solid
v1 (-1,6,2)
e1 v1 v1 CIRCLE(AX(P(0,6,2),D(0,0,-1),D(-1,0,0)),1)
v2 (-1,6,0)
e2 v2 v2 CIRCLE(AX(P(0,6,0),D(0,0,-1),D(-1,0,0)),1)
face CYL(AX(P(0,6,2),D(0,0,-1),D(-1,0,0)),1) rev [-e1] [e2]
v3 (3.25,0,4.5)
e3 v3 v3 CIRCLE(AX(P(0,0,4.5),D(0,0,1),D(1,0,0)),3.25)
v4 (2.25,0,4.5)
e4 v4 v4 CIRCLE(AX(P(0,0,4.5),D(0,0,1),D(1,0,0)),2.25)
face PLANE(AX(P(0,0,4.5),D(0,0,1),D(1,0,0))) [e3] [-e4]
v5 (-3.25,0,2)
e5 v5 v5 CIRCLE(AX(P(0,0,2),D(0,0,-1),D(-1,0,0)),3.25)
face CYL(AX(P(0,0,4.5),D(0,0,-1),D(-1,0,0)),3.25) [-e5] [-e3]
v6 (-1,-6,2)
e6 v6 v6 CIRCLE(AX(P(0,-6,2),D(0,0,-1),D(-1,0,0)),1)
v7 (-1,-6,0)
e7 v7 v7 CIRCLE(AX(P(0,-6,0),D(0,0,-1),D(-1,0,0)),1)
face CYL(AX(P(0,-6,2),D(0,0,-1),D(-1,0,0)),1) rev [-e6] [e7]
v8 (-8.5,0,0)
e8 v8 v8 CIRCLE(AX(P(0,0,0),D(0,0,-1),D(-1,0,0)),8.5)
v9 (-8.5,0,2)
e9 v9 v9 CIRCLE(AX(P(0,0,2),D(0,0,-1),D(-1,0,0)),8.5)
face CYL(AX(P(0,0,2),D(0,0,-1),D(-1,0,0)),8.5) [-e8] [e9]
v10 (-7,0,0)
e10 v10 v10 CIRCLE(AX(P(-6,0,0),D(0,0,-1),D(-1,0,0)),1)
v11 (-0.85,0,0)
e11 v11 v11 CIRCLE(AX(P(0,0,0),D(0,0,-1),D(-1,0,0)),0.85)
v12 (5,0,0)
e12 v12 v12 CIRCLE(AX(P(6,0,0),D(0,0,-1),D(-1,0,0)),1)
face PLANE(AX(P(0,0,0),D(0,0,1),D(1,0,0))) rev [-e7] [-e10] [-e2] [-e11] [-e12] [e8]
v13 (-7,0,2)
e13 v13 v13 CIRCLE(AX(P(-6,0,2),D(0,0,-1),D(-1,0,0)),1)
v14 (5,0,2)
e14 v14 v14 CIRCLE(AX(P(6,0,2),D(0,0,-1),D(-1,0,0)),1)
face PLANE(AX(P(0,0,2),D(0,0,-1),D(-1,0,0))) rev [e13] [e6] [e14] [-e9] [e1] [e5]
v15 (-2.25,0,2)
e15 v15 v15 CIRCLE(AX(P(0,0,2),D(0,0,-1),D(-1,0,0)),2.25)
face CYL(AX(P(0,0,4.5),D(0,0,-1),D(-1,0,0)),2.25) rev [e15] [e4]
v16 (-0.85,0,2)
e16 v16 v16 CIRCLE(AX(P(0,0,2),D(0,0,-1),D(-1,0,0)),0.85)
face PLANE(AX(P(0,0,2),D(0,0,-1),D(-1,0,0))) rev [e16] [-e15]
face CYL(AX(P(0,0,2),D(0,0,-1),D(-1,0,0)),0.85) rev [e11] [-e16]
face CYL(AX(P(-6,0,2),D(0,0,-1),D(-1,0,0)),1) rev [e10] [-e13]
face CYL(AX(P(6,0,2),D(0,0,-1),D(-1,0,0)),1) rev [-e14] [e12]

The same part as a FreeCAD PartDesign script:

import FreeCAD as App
import Part
import Sketcher
Q = App.Units.Quantity

doc = App.newDocument("Part")
params = doc.addObject("Spreadsheet::Sheet", "Params")
for row, (alias, value) in enumerate([
    ("sketch1_diameter", "6.5 mm"),
    ("sketch1_diameter2", "4.5 mm"),
    ("pad1_length", "4.5 mm"),
    ("sketch2_diameter", "17 mm"),
    ("sketch2_diameter2", "2 mm"),
    ("sketch2_diameter3", "1.7 mm"),
    ("pad2_length", "2 mm"),
], start=1):
    params.set(f"A{row}", alias)
    params.set(f"B{row}", "=" + value)
    params.setAlias(f"B{row}", alias)

body = doc.addObject("PartDesign::Body", "Body")

sketch1 = body.newObject("Sketcher::SketchObject", "Sketch")
sketch1.AttachmentSupport = (doc.getObject("XY_Plane"), [""])
sketch1.MapMode = "FlatFace"
sketch1.addGeometry(Part.Circle(App.Vector(0, 0, 0), App.Vector(0, 0, 1), 3.2), False)
sketch1.addGeometry(Part.Circle(App.Vector(0, 0, 0), App.Vector(0, 0, 1), 2.2), False)
sketch1.addConstraint(Sketcher.Constraint("Coincident", 0, 3, -1, 1))
sketch1.addConstraint(Sketcher.Constraint("Coincident", 1, 3, -1, 1))
sketch1.addConstraint(Sketcher.Constraint("Diameter", 0, Q("6.5 mm")))
sketch1.addConstraint(Sketcher.Constraint("Diameter", 1, Q("4.5 mm")))
sketch1.setExpression("Constraints[2]", "Params.sketch1_diameter")
sketch1.setExpression("Constraints[3]", "Params.sketch1_diameter2")
pad1 = body.newObject("PartDesign::Pad", "Pad")
pad1.Profile = sketch1
pad1.setExpression("Length", "Params.pad1_length")

sketch2 = body.newObject("Sketcher::SketchObject", "Sketch001")
sketch2.AttachmentSupport = (doc.getObject("XY_Plane"), [""])
sketch2.MapMode = "FlatFace"
sketch2.addGeometry(Part.Circle(App.Vector(0, 0, 0), App.Vector(0, 0, 1), 8.5), False)
sketch2.addGeometry(Part.Circle(App.Vector(0, -6, 0), App.Vector(0, 0, 1), 1), False)
sketch2.addGeometry(Part.Circle(App.Vector(6, 0, 0), App.Vector(0, 0, 1), 1), False)
sketch2.addGeometry(Part.Circle(App.Vector(0, 0, 0), App.Vector(0, 0, 1), 0.8), False)
sketch2.addGeometry(Part.Circle(App.Vector(-6, 0, 0), App.Vector(0, 0, 1), 1), False)
sketch2.addGeometry(Part.Circle(App.Vector(0, 6, 0), App.Vector(0, 0, 1), 1), False)
sketch2.addConstraint(Sketcher.Constraint("Coincident", 0, 3, -1, 1))
sketch2.addConstraint(Sketcher.Constraint("Coincident", 3, 3, -1, 1))
sketch2.addConstraint(Sketcher.Constraint("Equal", 1, 2))
sketch2.addConstraint(Sketcher.Constraint("Equal", 2, 4))
sketch2.addConstraint(Sketcher.Constraint("Equal", 4, 5))
sketch2.addConstraint(Sketcher.Constraint("Symmetric", 2, 3, 4, 3, -1, 1))
sketch2.addConstraint(Sketcher.Constraint("Symmetric", 1, 3, 5, 3, -1, 1))
sketch2.addConstraint(Sketcher.Constraint("PointOnObject", 1, 3, -2))
sketch2.addConstraint(Sketcher.Constraint("PointOnObject", 2, 3, -1))
sketch2.addConstraint(Sketcher.Constraint("Diameter", 0, Q("17 mm")))
sketch2.addConstraint(Sketcher.Constraint("Diameter", 1, Q("2 mm")))
sketch2.addConstraint(Sketcher.Constraint("Diameter", 3, Q("1.7 mm")))
sketch2.addConstraint(Sketcher.Constraint("DistanceY", 1, 3, -1, 1, Q("6 mm")))
sketch2.addConstraint(Sketcher.Constraint("DistanceX", -1, 1, 2, 3, Q("6 mm")))
sketch2.setExpression("Constraints[9]", "Params.sketch2_diameter")
sketch2.setExpression("Constraints[10]", "Params.sketch2_diameter2")
sketch2.setExpression("Constraints[11]", "Params.sketch2_diameter3")
pad2 = body.newObject("PartDesign::Pad", "Pad001")
pad2.Profile = sketch2
pad2.setExpression("Length", "Params.pad2_length")

doc.recompute()
